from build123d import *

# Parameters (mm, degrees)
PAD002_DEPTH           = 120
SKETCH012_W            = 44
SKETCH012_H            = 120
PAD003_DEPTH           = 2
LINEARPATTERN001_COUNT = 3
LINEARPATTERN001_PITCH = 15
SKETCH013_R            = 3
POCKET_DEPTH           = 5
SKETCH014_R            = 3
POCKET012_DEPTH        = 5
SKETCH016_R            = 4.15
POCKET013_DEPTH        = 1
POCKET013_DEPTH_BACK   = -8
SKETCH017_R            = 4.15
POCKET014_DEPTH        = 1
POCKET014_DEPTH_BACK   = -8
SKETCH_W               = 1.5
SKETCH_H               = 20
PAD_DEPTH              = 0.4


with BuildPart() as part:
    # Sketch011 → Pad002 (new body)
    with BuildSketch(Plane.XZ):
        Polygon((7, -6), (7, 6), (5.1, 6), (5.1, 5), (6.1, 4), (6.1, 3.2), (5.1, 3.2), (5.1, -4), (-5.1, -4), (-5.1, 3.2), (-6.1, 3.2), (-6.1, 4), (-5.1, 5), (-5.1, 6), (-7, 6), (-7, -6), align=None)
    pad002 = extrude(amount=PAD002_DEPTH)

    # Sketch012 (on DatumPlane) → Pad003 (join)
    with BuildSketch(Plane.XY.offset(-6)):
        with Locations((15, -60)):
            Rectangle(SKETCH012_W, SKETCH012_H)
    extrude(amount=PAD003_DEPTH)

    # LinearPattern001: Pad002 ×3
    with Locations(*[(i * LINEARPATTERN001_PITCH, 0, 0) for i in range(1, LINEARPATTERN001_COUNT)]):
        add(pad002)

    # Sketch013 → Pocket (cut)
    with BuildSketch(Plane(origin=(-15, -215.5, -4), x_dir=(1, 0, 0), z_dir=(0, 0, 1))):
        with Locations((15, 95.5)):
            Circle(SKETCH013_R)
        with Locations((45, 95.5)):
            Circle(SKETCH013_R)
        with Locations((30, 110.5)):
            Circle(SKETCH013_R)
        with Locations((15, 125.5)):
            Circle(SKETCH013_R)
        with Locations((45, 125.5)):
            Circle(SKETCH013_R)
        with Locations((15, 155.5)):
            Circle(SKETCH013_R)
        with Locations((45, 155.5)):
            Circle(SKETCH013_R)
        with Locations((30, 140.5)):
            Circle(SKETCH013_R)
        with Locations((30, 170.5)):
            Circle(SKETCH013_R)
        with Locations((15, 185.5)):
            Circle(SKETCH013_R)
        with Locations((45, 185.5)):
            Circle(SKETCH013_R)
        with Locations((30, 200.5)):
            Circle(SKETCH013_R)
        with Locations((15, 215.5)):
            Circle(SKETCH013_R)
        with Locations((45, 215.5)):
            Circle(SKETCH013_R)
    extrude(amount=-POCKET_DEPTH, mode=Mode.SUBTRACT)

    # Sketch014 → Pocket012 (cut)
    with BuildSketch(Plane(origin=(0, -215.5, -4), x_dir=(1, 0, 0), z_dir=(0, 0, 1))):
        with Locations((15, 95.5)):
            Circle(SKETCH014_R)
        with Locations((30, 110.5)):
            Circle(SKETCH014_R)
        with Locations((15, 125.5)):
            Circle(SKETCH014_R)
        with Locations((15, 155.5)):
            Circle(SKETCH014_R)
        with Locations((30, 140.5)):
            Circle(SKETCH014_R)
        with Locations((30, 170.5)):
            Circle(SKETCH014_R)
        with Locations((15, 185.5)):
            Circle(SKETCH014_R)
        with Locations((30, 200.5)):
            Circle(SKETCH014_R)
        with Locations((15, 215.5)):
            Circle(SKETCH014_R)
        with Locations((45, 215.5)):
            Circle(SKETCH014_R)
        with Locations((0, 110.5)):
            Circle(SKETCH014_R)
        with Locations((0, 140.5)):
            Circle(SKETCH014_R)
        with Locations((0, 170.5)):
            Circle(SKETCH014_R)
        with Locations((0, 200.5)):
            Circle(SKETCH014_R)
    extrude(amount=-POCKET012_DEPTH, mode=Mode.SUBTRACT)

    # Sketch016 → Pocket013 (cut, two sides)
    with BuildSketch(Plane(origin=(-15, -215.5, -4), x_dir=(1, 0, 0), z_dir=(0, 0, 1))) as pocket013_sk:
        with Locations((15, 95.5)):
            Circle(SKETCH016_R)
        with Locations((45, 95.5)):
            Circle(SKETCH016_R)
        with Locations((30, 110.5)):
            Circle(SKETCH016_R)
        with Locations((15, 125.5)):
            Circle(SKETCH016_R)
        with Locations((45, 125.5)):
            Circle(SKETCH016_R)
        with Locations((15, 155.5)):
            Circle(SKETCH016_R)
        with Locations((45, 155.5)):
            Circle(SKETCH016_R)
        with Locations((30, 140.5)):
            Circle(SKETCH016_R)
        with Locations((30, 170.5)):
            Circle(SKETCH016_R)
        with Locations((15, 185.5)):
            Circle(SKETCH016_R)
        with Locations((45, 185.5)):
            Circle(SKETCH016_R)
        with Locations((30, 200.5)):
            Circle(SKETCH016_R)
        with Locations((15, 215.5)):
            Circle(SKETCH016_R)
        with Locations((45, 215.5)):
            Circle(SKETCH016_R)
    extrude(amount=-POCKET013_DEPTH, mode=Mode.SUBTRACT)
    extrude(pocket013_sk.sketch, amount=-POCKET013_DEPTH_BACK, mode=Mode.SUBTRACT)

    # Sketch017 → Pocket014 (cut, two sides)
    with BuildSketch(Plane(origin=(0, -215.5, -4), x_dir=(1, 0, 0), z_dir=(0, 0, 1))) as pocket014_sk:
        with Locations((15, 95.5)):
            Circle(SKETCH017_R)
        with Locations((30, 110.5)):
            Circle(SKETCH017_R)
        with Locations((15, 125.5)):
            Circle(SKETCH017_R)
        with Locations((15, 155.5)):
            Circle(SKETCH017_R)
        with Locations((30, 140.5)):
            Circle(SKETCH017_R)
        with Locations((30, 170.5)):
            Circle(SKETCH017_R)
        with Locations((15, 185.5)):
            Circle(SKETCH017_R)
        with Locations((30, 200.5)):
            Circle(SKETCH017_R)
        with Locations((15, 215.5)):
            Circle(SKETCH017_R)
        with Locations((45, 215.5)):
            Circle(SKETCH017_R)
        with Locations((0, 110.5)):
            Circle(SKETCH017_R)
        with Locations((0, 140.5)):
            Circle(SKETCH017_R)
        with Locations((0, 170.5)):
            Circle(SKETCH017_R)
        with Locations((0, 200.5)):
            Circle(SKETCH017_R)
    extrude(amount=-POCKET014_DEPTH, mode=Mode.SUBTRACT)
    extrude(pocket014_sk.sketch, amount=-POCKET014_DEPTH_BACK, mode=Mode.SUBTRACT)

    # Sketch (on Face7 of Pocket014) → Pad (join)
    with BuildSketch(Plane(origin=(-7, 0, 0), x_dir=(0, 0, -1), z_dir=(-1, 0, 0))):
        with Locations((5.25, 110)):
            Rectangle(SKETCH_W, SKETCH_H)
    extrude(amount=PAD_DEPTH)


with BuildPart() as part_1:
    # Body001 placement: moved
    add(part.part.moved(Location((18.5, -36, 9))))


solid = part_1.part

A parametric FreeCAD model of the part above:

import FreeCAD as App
import Part
import Sketcher
Q = App.Units.Quantity

doc = App.newDocument("Part")
body = doc.addObject("PartDesign::Body", "Body")

sketch1 = doc.addObject("Sketcher::SketchObject", "Sketch")
body.addObject(sketch1)
sketch1.AttachmentSupport = (doc.XZ_Plane, [""])
sketch1.MapMode = "FlatFace"
sketch1.addGeometry([
    Part.LineSegment(App.Vector(7, -6, 0), App.Vector(7, 6, 0)),
    Part.LineSegment(App.Vector(7, 6, 0), App.Vector(5.1, 6, 0)),
    Part.LineSegment(App.Vector(5.1, 6, 0), App.Vector(5.1, 5, 0)),
    Part.LineSegment(App.Vector(5.1, 5, 0), App.Vector(6.1, 4, 0)),
    Part.LineSegment(App.Vector(6.1, 4, 0), App.Vector(6.1, 3.2, 0)),
    Part.LineSegment(App.Vector(6.1, 3.2, 0), App.Vector(5.1, 3.2, 0)),
    Part.LineSegment(App.Vector(5.1, 3.2, 0), App.Vector(5.1, -4, 0)),
    Part.LineSegment(App.Vector(5.1, -4, 0), App.Vector(-5.1, -4, 0)),
    Part.LineSegment(App.Vector(-5.1, -4, 0), App.Vector(-5.1, 3.2, 0)),
    Part.LineSegment(App.Vector(-5.1, 3.2, 0), App.Vector(-6.1, 3.2, 0)),
    Part.LineSegment(App.Vector(-6.1, 3.2, 0), App.Vector(-6.1, 4, 0)),
    Part.LineSegment(App.Vector(-6.1, 4, 0), App.Vector(-5.1, 5, 0)),
    Part.LineSegment(App.Vector(-5.1, 5, 0), App.Vector(-5.1, 6, 0)),
    Part.LineSegment(App.Vector(-5.1, 6, 0), App.Vector(-7, 6, 0)),
    Part.LineSegment(App.Vector(-7, 6, 0), App.Vector(-7, -6, 0)),
    Part.LineSegment(App.Vector(-7, -6, 0), App.Vector(7, -6, 0)),
], False)
sketch1.addConstraint([
    Sketcher.Constraint("Coincident", 0, 2, 1, 1),
    Sketcher.Constraint("Coincident", 1, 2, 2, 1),
    Sketcher.Constraint("Coincident", 2, 2, 3, 1),
    Sketcher.Constraint("Coincident", 3, 2, 4, 1),
    Sketcher.Constraint("Coincident", 4, 2, 5, 1),
    Sketcher.Constraint("Coincident", 5, 2, 6, 1),
    Sketcher.Constraint("Coincident", 6, 2, 7, 1),
    Sketcher.Constraint("Coincident", 7, 2, 8, 1),
    Sketcher.Constraint("Coincident", 8, 2, 9, 1),
    Sketcher.Constraint("Coincident", 9, 2, 10, 1),
    Sketcher.Constraint("Coincident", 10, 2, 11, 1),
    Sketcher.Constraint("Coincident", 11, 2, 12, 1),
    Sketcher.Constraint("Coincident", 12, 2, 13, 1),
    Sketcher.Constraint("Coincident", 13, 2, 14, 1),
    Sketcher.Constraint("Coincident", 14, 2, 15, 1),
    Sketcher.Constraint("Coincident", 15, 2, 0, 1),
    Sketcher.Constraint("Vertical", 0),
    Sketcher.Constraint("Horizontal", 1),
    Sketcher.Constraint("Vertical", 2),
    Sketcher.Constraint("Vertical", 4),
    Sketcher.Constraint("Horizontal", 5),
    Sketcher.Constraint("Vertical", 6),
    Sketcher.Constraint("Horizontal", 7),
    Sketcher.Constraint("Vertical", 8),
    Sketcher.Constraint("Horizontal", 9),
    Sketcher.Constraint("Vertical", 10),
    Sketcher.Constraint("Vertical", 12),
    Sketcher.Constraint("Horizontal", 13),
    Sketcher.Constraint("Vertical", 14),
    Sketcher.Constraint("Horizontal", 15),
    Sketcher.Constraint("Symmetric", 0, 2, 14, 2, -1, 1),
    Sketcher.Constraint("Symmetric", 5, 2, 8, 2, -2),
    Sketcher.Constraint("Symmetric", 3, 2, 10, 2, -2),
    Sketcher.Constraint("Symmetric", 2, 2, 11, 2, -2),
    Sketcher.Constraint("Perpendicular", 3, 11),
    Sketcher.Constraint("Horizontal", 1, 2, 12, 2),
    Sketcher.Constraint("Vertical", 2, 2, 5, 2),
    Sketcher.Constraint("Equal", 9, 2),
    Sketcher.Constraint("DistanceX", 5, 2, 5, 1, Q("1 mm")),
    Sketcher.Constraint("DistanceX", 15, 1, 15, 2, Q("14 mm")),
    Sketcher.Constraint("DistanceY", 0, 1, 0, 2, Q("12 mm")),
    Sketcher.Constraint("DistanceX", 1, 2, 1, 1, Q("1.9 mm")),
    Sketcher.Constraint("DistanceY", 4, 2, 4, 1, Q("0.8 mm")),
    Sketcher.Constraint("DistanceY", 6, 2, 6, 1, Q("7.2 mm")),
])
pad1 = doc.addObject("PartDesign::Pad", "Pad")
body.addObject(pad1)
pad1.Profile = sketch1
pad1.Length = 120

sketch2 = doc.addObject("Sketcher::SketchObject", "Sketch001")
body.addObject(sketch2)
sketch2.AttachmentSupport = (doc.XY_Plane, [""])
sketch2.MapMode = "FlatFace"
sketch2.AttachmentOffset = App.Placement(App.Vector(0, 0, -6), App.Rotation())
sketch2.addGeometry([
    Part.LineSegment(App.Vector(-7, 0, 0), App.Vector(-7, -120, 0)),
    Part.LineSegment(App.Vector(-7, -120, 0), App.Vector(37, -120, 0)),
    Part.LineSegment(App.Vector(37, -120, 0), App.Vector(37, 0, 0)),
    Part.LineSegment(App.Vector(37, 0, 0), App.Vector(-7, 0, 0)),
], False)
sketch2.addConstraint([
    Sketcher.Constraint("Coincident", 0, 2, 1, 1),
    Sketcher.Constraint("Coincident", 1, 2, 2, 1),
    Sketcher.Constraint("Coincident", 2, 2, 3, 1),
    Sketcher.Constraint("Coincident", 3, 2, 0, 1),
    Sketcher.Constraint("Vertical", 0),
    Sketcher.Constraint("Horizontal", 1),
    Sketcher.Constraint("Vertical", 2),
    Sketcher.Constraint("Horizontal", 3),
    Sketcher.Constraint("PointOnObject", 2, 2, -1),
    Sketcher.Constraint("DistanceX", 1, 1, 1, 2, Q("44 mm")),
    Sketcher.Constraint("DistanceY", 0, 2, 0, 1, Q("120 mm")),
    Sketcher.Constraint("DistanceX", 0, 2, -1, 1, Q("7 mm")),
])
pad2 = doc.addObject("PartDesign::Pad", "Pad001")
body.addObject(pad2)
pad2.Profile = sketch2
pad2.Length = 2
doc.recompute()

linearpattern = doc.addObject("PartDesign::LinearPattern", "LinearPattern")
body.addObject(linearpattern)
linearpattern.Originals = [pad1]
linearpattern.Direction = (doc.X_Axis, [""])
linearpattern.Mode = "offset"
linearpattern.Offset = 15
linearpattern.Occurrences = 3
body.Tip = linearpattern

sketch3 = doc.addObject("Sketcher::SketchObject", "Sketch002")
body.addObject(sketch3)
sketch3.AttachmentSupport = (doc.XY_Plane, [""])
sketch3.MapMode = "FlatFace"
sketch3.AttachmentOffset = App.Placement(App.Vector(0, 0, -4), App.Rotation())
sketch3.addGeometry([
    Part.Circle(App.Vector(0, -120, 0), App.Vector(0, 0, 1), 3),
    Part.Circle(App.Vector(30, -120, 0), App.Vector(0, 0, 1), 3),
    Part.Circle(App.Vector(15, -105, 0), App.Vector(0, 0, 1), 3),
    Part.Circle(App.Vector(0, -90, 0), App.Vector(0, 0, 1), 3),
    Part.Circle(App.Vector(30, -90, 0), App.Vector(0, 0, 1), 3),
    Part.Circle(App.Vector(0, -60, 0), App.Vector(0, 0, 1), 3),
    Part.Circle(App.Vector(30, -60, 0), App.Vector(0, 0, 1), 3),
    Part.Circle(App.Vector(15, -75, 0), App.Vector(0, 0, 1), 3),
    Part.Circle(App.Vector(15, -45, 0), App.Vector(0, 0, 1), 3),
    Part.Circle(App.Vector(0, -30, 0), App.Vector(0, 0, 1), 3),
    Part.Circle(App.Vector(30, -30, 0), App.Vector(0, 0, 1), 3),
    Part.Circle(App.Vector(15, -15, 0), App.Vector(0, 0, 1), 3),
    Part.Circle(App.Vector(0, 0, 0), App.Vector(0, 0, 1), 3),
    Part.Circle(App.Vector(30, 0, 0), App.Vector(0, 0, 1), 3),
], False)
sketch3.addConstraint([
    Sketcher.Constraint("Coincident", 12, 3, -1, 1),
    Sketcher.Constraint("Equal", 0, 1),
    Sketcher.Constraint("Equal", 1, 2),
    Sketcher.Constraint("Equal", 2, 3),
    Sketcher.Constraint("Equal", 3, 4),
    Sketcher.Constraint("Equal", 4, 5),
    Sketcher.Constraint("Equal", 5, 6),
    Sketcher.Constraint("Equal", 6, 7),
    Sketcher.Constraint("Equal", 7, 8),
    Sketcher.Constraint("Equal", 8, 9),
    Sketcher.Constraint("Equal", 9, 10),
    Sketcher.Constraint("Equal", 10, 11),
    Sketcher.Constraint("Equal", 11, 12),
    Sketcher.Constraint("Equal", 12, 13),
    Sketcher.Constraint("PointOnObject", 0, 3, -2),
    Sketcher.Constraint("PointOnObject", 3, 3, -2),
    Sketcher.Constraint("PointOnObject", 5, 3, -2),
    Sketcher.Constraint("PointOnObject", 9, 3, -2),
    Sketcher.Constraint("PointOnObject", 13, 3, -1),
    Sketcher.Constraint("Horizontal", 0, 3, 1, 3),
    Sketcher.Constraint("Horizontal", 3, 3, 4, 3),
    Sketcher.Constraint("Horizontal", 5, 3, 6, 3),
    Sketcher.Constraint("Horizontal", 9, 3, 10, 3),
    Sketcher.Constraint("Vertical", 1, 3, 4, 3),
    Sketcher.Constraint("Vertical", 4, 3, 6, 3),
    Sketcher.Constraint("Vertical", 2, 3, 7, 3),
    Sketcher.Constraint("Vertical", 7, 3, 8, 3),
    Sketcher.Constraint("Vertical", 6, 3, 10, 3),
    Sketcher.Constraint("Vertical", 8, 3, 11, 3),
    Sketcher.Constraint("Vertical", 10, 3, 13, 3),
    Sketcher.Constraint("Diameter", 0, Q("6 mm")),
    Sketcher.Constraint("DistanceY", 0, 3, -1, 1, Q("120 mm")),
    Sketcher.Constraint("DistanceX", -1, 1, 1, 3, Q("30 mm")),
    Sketcher.Constraint("DistanceX", -1, 1, 2, 3, Q("15 mm")),
    Sketcher.Constraint("DistanceY", 2, 3, -1, 1, Q("105 mm")),
    Sketcher.Constraint("DistanceY", 3, 3, -1, 1, Q("90 mm")),
    Sketcher.Constraint("DistanceY", 5, 3, -1, 1, Q("60 mm")),
    Sketcher.Constraint("DistanceY", 7, 3, -1, 1, Q("75 mm")),
    Sketcher.Constraint("DistanceY", 8, 3, -1, 1, Q("45 mm")),
    Sketcher.Constraint("DistanceY", 9, 3, -1, 1, Q("30 mm")),
    Sketcher.Constraint("DistanceY", 11, 3, -1, 1, Q("15 mm")),
])
pocket1 = doc.addObject("PartDesign::Pocket", "Pocket")
body.addObject(pocket1)
pocket1.Profile = sketch3
pocket1.Length = 5

sketch4 = doc.addObject("Sketcher::SketchObject", "Sketch003")
body.addObject(sketch4)
sketch4.AttachmentSupport = (doc.XY_Plane, [""])
sketch4.MapMode = "FlatFace"
sketch4.AttachmentOffset = App.Placement(App.Vector(0, 0, -4), App.Rotation())
sketch4.addGeometry([
    Part.Circle(App.Vector(15, -120, 0), App.Vector(0, 0, 1), 3),
    Part.Circle(App.Vector(30, -105, 0), App.Vector(0, 0, 1), 3),
    Part.Circle(App.Vector(15, -90, 0), App.Vector(0, 0, 1), 3),
    Part.Circle(App.Vector(15, -60, 0), App.Vector(0, 0, 1), 3),
    Part.Circle(App.Vector(30, -75, 0), App.Vector(0, 0, 1), 3),
    Part.Circle(App.Vector(30, -45, 0), App.Vector(0, 0, 1), 3),
    Part.Circle(App.Vector(15, -30, 0), App.Vector(0, 0, 1), 3),
    Part.Circle(App.Vector(30, -15, 0), App.Vector(0, 0, 1), 3),
    Part.Circle(App.Vector(15, 0, 0), App.Vector(0, 0, 1), 3),
    Part.Circle(App.Vector(45, 0, 0), App.Vector(0, 0, 1), 3),
    Part.Circle(App.Vector(0, -105, 0), App.Vector(0, 0, 1), 3),
    Part.Circle(App.Vector(0, -75, 0), App.Vector(0, 0, 1), 3),
    Part.Circle(App.Vector(0, -45, 0), App.Vector(0, 0, 1), 3),
    Part.Circle(App.Vector(0, -15, 0), App.Vector(0, 0, 1), 3),
], False)
sketch4.addConstraint([
    Sketcher.Constraint("Equal", 0, 1),
    Sketcher.Constraint("Equal", 1, 2),
    Sketcher.Constraint("Equal", 2, 3),
    Sketcher.Constraint("Equal", 3, 4),
    Sketcher.Constraint("Equal", 4, 5),
    Sketcher.Constraint("Equal", 5, 6),
    Sketcher.Constraint("Equal", 6, 7),
    Sketcher.Constraint("Equal", 7, 8),
    Sketcher.Constraint("Equal", 8, 9),
    Sketcher.Constraint("Equal", 9, 10),
    Sketcher.Constraint("Equal", 10, 11),
    Sketcher.Constraint("Equal", 11, 12),
    Sketcher.Constraint("Equal", 12, 13),
    Sketcher.Constraint("PointOnObject", 8, 3, -1),
    Sketcher.Constraint("PointOnObject", 9, 3, -1),
    Sketcher.Constraint("PointOnObject", 10, 3, -2),
    Sketcher.Constraint("PointOnObject", 11, 3, -2),
    Sketcher.Constraint("PointOnObject", 12, 3, -2),
    Sketcher.Constraint("PointOnObject", 13, 3, -2),
    Sketcher.Constraint("Horizontal", 1, 3, 10, 3),
    Sketcher.Constraint("Horizontal", 4, 3, 11, 3),
    Sketcher.Constraint("Horizontal", 5, 3, 12, 3),
    Sketcher.Constraint("Horizontal", 7, 3, 13, 3),
    Sketcher.Constraint("Vertical", 0, 3, 2, 3),
    Sketcher.Constraint("Vertical", 2, 3, 3, 3),
    Sketcher.Constraint("Vertical", 1, 3, 4, 3),
    Sketcher.Constraint("Vertical", 4, 3, 5, 3),
    Sketcher.Constraint("Vertical", 3, 3, 6, 3),
    Sketcher.Constraint("Vertical", 5, 3, 7, 3),
    Sketcher.Constraint("Vertical", 6, 3, 8, 3),
    Sketcher.Constraint("Diameter", 0, Q("6 mm")),
    Sketcher.Constraint("DistanceX", -1, 1, 0, 3, Q("15 mm")),
    Sketcher.Constraint("DistanceY", 0, 3, -1, 1, Q("120 mm")),
    Sketcher.Constraint("DistanceX", -1, 1, 1, 3, Q("30 mm")),
    Sketcher.Constraint("DistanceY", 1, 3, -1, 1, Q("105 mm")),
    Sketcher.Constraint("DistanceY", 2, 3, -1, 1, Q("90 mm")),
    Sketcher.Constraint("DistanceY", 3, 3, -1, 1, Q("60 mm")),
    Sketcher.Constraint("DistanceY", 4, 3, -1, 1, Q("75 mm")),
    Sketcher.Constraint("DistanceY", 5, 3, -1, 1, Q("45 mm")),
    Sketcher.Constraint("DistanceY", 6, 3, -1, 1, Q("30 mm")),
    Sketcher.Constraint("DistanceY", 7, 3, -1, 1, Q("15 mm")),
    Sketcher.Constraint("DistanceX", -1, 1, 9, 3, Q("45 mm")),
])
pocket2 = doc.addObject("PartDesign::Pocket", "Pocket001")
body.addObject(pocket2)
pocket2.Profile = sketch4
pocket2.Length = 5

sketch5 = doc.addObject("Sketcher::SketchObject", "Sketch004")
body.addObject(sketch5)
sketch5.AttachmentSupport = (doc.XY_Plane, [""])
sketch5.MapMode = "FlatFace"
sketch5.AttachmentOffset = App.Placement(App.Vector(0, 0, -4), App.Rotation())
sketch5.addGeometry([
    Part.Circle(App.Vector(0, -120, 0), App.Vector(0, 0, 1), 4.2),
    Part.Circle(App.Vector(30, -120, 0), App.Vector(0, 0, 1), 4.2),
    Part.Circle(App.Vector(15, -105, 0), App.Vector(0, 0, 1), 4.2),
    Part.Circle(App.Vector(0, -90, 0), App.Vector(0, 0, 1), 4.2),
    Part.Circle(App.Vector(30, -90, 0), App.Vector(0, 0, 1), 4.2),
    Part.Circle(App.Vector(0, -60, 0), App.Vector(0, 0, 1), 4.2),
    Part.Circle(App.Vector(30, -60, 0), App.Vector(0, 0, 1), 4.2),
    Part.Circle(App.Vector(15, -75, 0), App.Vector(0, 0, 1), 4.2),
    Part.Circle(App.Vector(15, -45, 0), App.Vector(0, 0, 1), 4.2),
    Part.Circle(App.Vector(0, -30, 0), App.Vector(0, 0, 1), 4.2),
    Part.Circle(App.Vector(30, -30, 0), App.Vector(0, 0, 1), 4.2),
    Part.Circle(App.Vector(15, -15, 0), App.Vector(0, 0, 1), 4.2),
    Part.Circle(App.Vector(0, 0, 0), App.Vector(0, 0, 1), 4.2),
    Part.Circle(App.Vector(30, 0, 0), App.Vector(0, 0, 1), 4.2),
], False)
sketch5.addConstraint([
    Sketcher.Constraint("Coincident", 12, 3, -1, 1),
    Sketcher.Constraint("Equal", 0, 1),
    Sketcher.Constraint("Equal", 1, 2),
    Sketcher.Constraint("Equal", 2, 3),
    Sketcher.Constraint("Equal", 3, 4),
    Sketcher.Constraint("Equal", 4, 5),
    Sketcher.Constraint("Equal", 5, 6),
    Sketcher.Constraint("Equal", 6, 7),
    Sketcher.Constraint("Equal", 7, 8),
    Sketcher.Constraint("Equal", 8, 9),
    Sketcher.Constraint("Equal", 9, 10),
    Sketcher.Constraint("Equal", 10, 11),
    Sketcher.Constraint("Equal", 11, 12),
    Sketcher.Constraint("Equal", 12, 13),
    Sketcher.Constraint("PointOnObject", 0, 3, -2),
    Sketcher.Constraint("PointOnObject", 3, 3, -2),
    Sketcher.Constraint("PointOnObject", 5, 3, -2),
    Sketcher.Constraint("PointOnObject", 9, 3, -2),
    Sketcher.Constraint("PointOnObject", 13, 3, -1),
    Sketcher.Constraint("Horizontal", 0, 3, 1, 3),
    Sketcher.Constraint("Horizontal", 3, 3, 4, 3),
    Sketcher.Constraint("Horizontal", 5, 3, 6, 3),
    Sketcher.Constraint("Horizontal", 9, 3, 10, 3),
    Sketcher.Constraint("Vertical", 1, 3, 4, 3),
    Sketcher.Constraint("Vertical", 4, 3, 6, 3),
    Sketcher.Constraint("Vertical", 2, 3, 7, 3),
    Sketcher.Constraint("Vertical", 7, 3, 8, 3),
    Sketcher.Constraint("Vertical", 6, 3, 10, 3),
    Sketcher.Constraint("Vertical", 8, 3, 11, 3),
    Sketcher.Constraint("Vertical", 10, 3, 13, 3),
    Sketcher.Constraint("Diameter", 0, Q("8.3 mm")),
    Sketcher.Constraint("DistanceY", 0, 3, -1, 1, Q("120 mm")),
    Sketcher.Constraint("DistanceX", -1, 1, 1, 3, Q("30 mm")),
    Sketcher.Constraint("DistanceX", -1, 1, 2, 3, Q("15 mm")),
    Sketcher.Constraint("DistanceY", 2, 3, -1, 1, Q("105 mm")),
    Sketcher.Constraint("DistanceY", 3, 3, -1, 1, Q("90 mm")),
    Sketcher.Constraint("DistanceY", 5, 3, -1, 1, Q("60 mm")),
    Sketcher.Constraint("DistanceY", 7, 3, -1, 1, Q("75 mm")),
    Sketcher.Constraint("DistanceY", 8, 3, -1, 1, Q("45 mm")),
    Sketcher.Constraint("DistanceY", 9, 3, -1, 1, Q("30 mm")),
    Sketcher.Constraint("DistanceY", 11, 3, -1, 1, Q("15 mm")),
])
pocket3 = doc.addObject("PartDesign::Pocket", "Pocket002")
body.addObject(pocket3)
pocket3.Profile = sketch5
pocket3.Type = "TwoLengths"
pocket3.Length = 1
pocket3.Length2 = 8

sketch6 = doc.addObject("Sketcher::SketchObject", "Sketch005")
body.addObject(sketch6)
sketch6.AttachmentSupport = (doc.XY_Plane, [""])
sketch6.MapMode = "FlatFace"
sketch6.AttachmentOffset = App.Placement(App.Vector(0, 0, -4), App.Rotation())
sketch6.addGeometry([
    Part.Circle(App.Vector(15, -120, 0), App.Vector(0, 0, 1), 4.2),
    Part.Circle(App.Vector(30, -105, 0), App.Vector(0, 0, 1), 4.2),
    Part.Circle(App.Vector(15, -90, 0), App.Vector(0, 0, 1), 4.2),
    Part.Circle(App.Vector(15, -60, 0), App.Vector(0, 0, 1), 4.2),
    Part.Circle(App.Vector(30, -75, 0), App.Vector(0, 0, 1), 4.2),
    Part.Circle(App.Vector(30, -45, 0), App.Vector(0, 0, 1), 4.2),
    Part.Circle(App.Vector(15, -30, 0), App.Vector(0, 0, 1), 4.2),
    Part.Circle(App.Vector(30, -15, 0), App.Vector(0, 0, 1), 4.2),
    Part.Circle(App.Vector(15, 0, 0), App.Vector(0, 0, 1), 4.2),
    Part.Circle(App.Vector(45, 0, 0), App.Vector(0, 0, 1), 4.2),
    Part.Circle(App.Vector(0, -105, 0), App.Vector(0, 0, 1), 4.2),
    Part.Circle(App.Vector(0, -75, 0), App.Vector(0, 0, 1), 4.2),
    Part.Circle(App.Vector(0, -45, 0), App.Vector(0, 0, 1), 4.2),
    Part.Circle(App.Vector(0, -15, 0), App.Vector(0, 0, 1), 4.2),
], False)
sketch6.addConstraint([
    Sketcher.Constraint("Equal", 0, 1),
    Sketcher.Constraint("Equal", 1, 2),
    Sketcher.Constraint("Equal", 2, 3),
    Sketcher.Constraint("Equal", 3, 4),
    Sketcher.Constraint("Equal", 4, 5),
    Sketcher.Constraint("Equal", 5, 6),
    Sketcher.Constraint("Equal", 6, 7),
    Sketcher.Constraint("Equal", 7, 8),
    Sketcher.Constraint("Equal", 8, 9),
    Sketcher.Constraint("Equal", 9, 10),
    Sketcher.Constraint("Equal", 10, 11),
    Sketcher.Constraint("Equal", 11, 12),
    Sketcher.Constraint("Equal", 12, 13),
    Sketcher.Constraint("PointOnObject", 8, 3, -1),
    Sketcher.Constraint("PointOnObject", 9, 3, -1),
    Sketcher.Constraint("PointOnObject", 10, 3, -2),
    Sketcher.Constraint("PointOnObject", 11, 3, -2),
    Sketcher.Constraint("PointOnObject", 12, 3, -2),
    Sketcher.Constraint("PointOnObject", 13, 3, -2),
    Sketcher.Constraint("Horizontal", 1, 3, 10, 3),
    Sketcher.Constraint("Horizontal", 4, 3, 11, 3),
    Sketcher.Constraint("Horizontal", 5, 3, 12, 3),
    Sketcher.Constraint("Horizontal", 7, 3, 13, 3),
    Sketcher.Constraint("Vertical", 0, 3, 2, 3),
    Sketcher.Constraint("Vertical", 2, 3, 3, 3),
    Sketcher.Constraint("Vertical", 1, 3, 4, 3),
    Sketcher.Constraint("Vertical", 4, 3, 5, 3),
    Sketcher.Constraint("Vertical", 3, 3, 6, 3),
    Sketcher.Constraint("Vertical", 5, 3, 7, 3),
    Sketcher.Constraint("Vertical", 6, 3, 8, 3),
    Sketcher.Constraint("Diameter", 0, Q("8.3 mm")),
    Sketcher.Constraint("DistanceX", -1, 1, 0, 3, Q("15 mm")),
    Sketcher.Constraint("DistanceY", 0, 3, -1, 1, Q("120 mm")),
    Sketcher.Constraint("DistanceX", -1, 1, 1, 3, Q("30 mm")),
    Sketcher.Constraint("DistanceY", 1, 3, -1, 1, Q("105 mm")),
    Sketcher.Constraint("DistanceY", 2, 3, -1, 1, Q("90 mm")),
    Sketcher.Constraint("DistanceY", 3, 3, -1, 1, Q("60 mm")),
    Sketcher.Constraint("DistanceY", 4, 3, -1, 1, Q("75 mm")),
    Sketcher.Constraint("DistanceY", 5, 3, -1, 1, Q("45 mm")),
    Sketcher.Constraint("DistanceY", 6, 3, -1, 1, Q("30 mm")),
    Sketcher.Constraint("DistanceY", 7, 3, -1, 1, Q("15 mm")),
    Sketcher.Constraint("DistanceX", -1, 1, 9, 3, Q("45 mm")),
])
pocket4 = doc.addObject("PartDesign::Pocket", "Pocket003")
body.addObject(pocket4)
pocket4.Profile = sketch6
pocket4.Type = "TwoLengths"
pocket4.Length = 1
pocket4.Length2 = 8

sketch7 = doc.addObject("Sketcher::SketchObject", "Sketch006")
body.addObject(sketch7)
sketch7.AttachmentSupport = (doc.YZ_Plane, [""])
sketch7.MapMode = "FlatFace"
sketch7.AttachmentOffset = App.Placement(App.Vector(0, 0, -7), App.Rotation())
sketch7.addGeometry([
    Part.LineSegment(App.Vector(-120, -4.5, 0), App.Vector(-100, -4.5, 0)),
    Part.LineSegment(App.Vector(-100, -4.5, 0), App.Vector(-100, -6, 0)),
    Part.LineSegment(App.Vector(-100, -6, 0), App.Vector(-120, -6, 0)),
    Part.LineSegment(App.Vector(-120, -6, 0), App.Vector(-120, -4.5, 0)),
], False)
sketch7.addConstraint([
    Sketcher.Constraint("Coincident", 0, 2, 1, 1),
    Sketcher.Constraint("Coincident", 1, 2, 2, 1),
    Sketcher.Constraint("Coincident", 2, 2, 3, 1),
    Sketcher.Constraint("Coincident", 3, 2, 0, 1),
    Sketcher.Constraint("Horizontal", 0),
    Sketcher.Constraint("Vertical", 1),
    Sketcher.Constraint("Horizontal", 2),
    Sketcher.Constraint("Vertical", 3),
    Sketcher.Constraint("DistanceX", 0, 1, 0, 2, Q("20 mm")),
    Sketcher.Constraint("DistanceY", 1, 2, 1, 1, Q("1.5 mm")),
    Sketcher.Constraint("DistanceX", 0, 2, -1, 1, Q("100 mm")),
    Sketcher.Constraint("DistanceY", 1, 2, -1, 1, Q("6 mm")),
])
pad3 = doc.addObject("PartDesign::Pad", "Pad002")
body.addObject(pad3)
pad3.Profile = sketch7
pad3.Length = 0.4
pad3.Reversed = True
body2 = doc.addObject("PartDesign::Body", "Body001")
doc.recompute()

body.Placement = App.Placement(App.Vector(18.5, -36, 9), App.Rotation(App.Vector(0, 0, 1), 0))
boolean = doc.addObject("PartDesign::Boolean", "Boolean")
body2.addObject(boolean)
boolean.Type = "Fuse"
boolean.addObjects([body])

doc.recompute()
